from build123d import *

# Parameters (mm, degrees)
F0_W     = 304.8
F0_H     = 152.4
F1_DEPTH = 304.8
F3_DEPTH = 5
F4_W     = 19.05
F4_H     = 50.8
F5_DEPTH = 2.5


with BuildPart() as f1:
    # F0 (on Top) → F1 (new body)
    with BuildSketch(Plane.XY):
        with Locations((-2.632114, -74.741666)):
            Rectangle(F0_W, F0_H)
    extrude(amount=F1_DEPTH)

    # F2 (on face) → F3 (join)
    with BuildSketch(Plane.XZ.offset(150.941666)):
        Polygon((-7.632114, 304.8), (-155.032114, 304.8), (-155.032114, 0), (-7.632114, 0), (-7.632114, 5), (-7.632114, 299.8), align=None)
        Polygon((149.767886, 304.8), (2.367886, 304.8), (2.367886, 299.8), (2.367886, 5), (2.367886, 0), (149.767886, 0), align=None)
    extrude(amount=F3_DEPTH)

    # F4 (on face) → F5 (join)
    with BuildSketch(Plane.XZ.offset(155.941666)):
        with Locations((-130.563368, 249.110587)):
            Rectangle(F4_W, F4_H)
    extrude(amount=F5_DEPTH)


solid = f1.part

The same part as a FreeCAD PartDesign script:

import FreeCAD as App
import Part
import Sketcher
from FreeCAD import Vector
Q = App.Units.Quantity

doc = App.newDocument("Part")
body = doc.addObject("PartDesign::Body", "Body")

# Sketch on XY plane
sketch1 = doc.addObject("Sketcher::SketchObject", "Sketch")
body.addObject(sketch1)
sketch1.AttachmentSupport = (doc.XY_Plane, [""])
sketch1.MapMode = "FlatFace"
sketch1.addGeometry([
    Part.LineSegment(Vector(-155.032114, 1.458334, 0), Vector(-155.032114, -150.941666, 0)),
    Part.LineSegment(Vector(-155.032114, -150.941666, 0), Vector(149.767886, -150.941666, 0)),
    Part.LineSegment(Vector(149.767886, -150.941666, 0), Vector(149.767886, 1.458334, 0)),
    Part.LineSegment(Vector(149.767886, 1.458334, 0), Vector(-155.032114, 1.458334, 0)),
], False)
sketch1.addConstraint([
    Sketcher.Constraint("Coincident", 0, 2, 1, 1),
    Sketcher.Constraint("Coincident", 1, 2, 2, 1),
    Sketcher.Constraint("Coincident", 2, 2, 3, 1),
    Sketcher.Constraint("Coincident", 3, 2, 0, 1),
    Sketcher.Constraint("Vertical", 0),
    Sketcher.Constraint("Horizontal", 1),
    Sketcher.Constraint("Vertical", 2),
    Sketcher.Constraint("Horizontal", 3),
    Sketcher.Constraint("DistanceX", 1, 1, 1, 2, Q("12 in")),
    Sketcher.Constraint("DistanceY", 0, 2, 0, 1, Q("6 in")),
    Sketcher.Constraint("DistanceX", 0, 2, -1, 1, Q("155.032114 mm")),
    Sketcher.Constraint("DistanceY", 0, 2, -1, 1, Q("150.941666 mm")),
])
pad1 = doc.addObject("PartDesign::Pad", "Pad")
body.addObject(pad1)
pad1.Profile = sketch1
pad1.Length = Q("12 in")

# Sketch on XZ plane
sketch2 = doc.addObject("Sketcher::SketchObject", "Sketch001")
body.addObject(sketch2)
sketch2.AttachmentSupport = (doc.XZ_Plane, [""])
sketch2.MapMode = "FlatFace"
sketch2.AttachmentOffset = App.Placement(Vector(0, 0, 150.941666), App.Rotation())
sketch2.addGeometry([
    Part.LineSegment(Vector(-7.632114, 304.8, 0), Vector(-155.032114, 304.8, 0)),  # 0
    Part.LineSegment(Vector(-155.032114, 304.8, 0), Vector(-155.032114, 0, 0)),  # 1
    Part.LineSegment(Vector(-155.032114, 0, 0), Vector(-7.632114, 0, 0)),  # 2
    Part.LineSegment(Vector(-7.632114, 0, 0), Vector(-7.632114, 304.8, 0)),  # 3
    Part.LineSegment(Vector(149.767886, 304.8, 0), Vector(2.367886, 304.8, 0)),  # 4
    Part.LineSegment(Vector(2.367886, 304.8, 0), Vector(2.367886, 0, 0)),  # 5
    Part.LineSegment(Vector(2.367886, 0, 0), Vector(149.767886, 0, 0)),  # 6
    Part.LineSegment(Vector(149.767886, 0, 0), Vector(149.767886, 304.8, 0)),  # 7
], False)
sketch2.addConstraint([
    Sketcher.Constraint("Coincident", 0, 2, 1, 1),
    Sketcher.Constraint("Coincident", 1, 2, 2, 1),
    Sketcher.Constraint("Coincident", 2, 2, 3, 1),
    Sketcher.Constraint("Coincident", 3, 2, 0, 1),
    Sketcher.Constraint("Coincident", 4, 2, 5, 1),
    Sketcher.Constraint("Coincident", 5, 2, 6, 1),
    Sketcher.Constraint("Coincident", 6, 2, 7, 1),
    Sketcher.Constraint("Coincident", 7, 2, 4, 1),
    Sketcher.Constraint("Horizontal", 0),
    Sketcher.Constraint("Vertical", 1),
    Sketcher.Constraint("Horizontal", 2),
    Sketcher.Constraint("Vertical", 3),
    Sketcher.Constraint("Horizontal", 4),
    Sketcher.Constraint("Vertical", 5),
    Sketcher.Constraint("Horizontal", 6),
    Sketcher.Constraint("Vertical", 7),
    Sketcher.Constraint("PointOnObject", 1, 2, -1),
    Sketcher.Constraint("PointOnObject", 5, 2, -1),
    Sketcher.Constraint("Horizontal", 3, 2, 4, 2),
    Sketcher.Constraint("Equal", 2, 4),
    Sketcher.Constraint("DistanceY", 1, 2, 1, 1, Q("12 in")),
    Sketcher.Constraint("DistanceX", 1, 2, 6, 2, Q("12 in")),
    Sketcher.Constraint("DistanceX", 0, 2, 0, 1, Q("147.4 mm")),
    Sketcher.Constraint("DistanceX", 0, 2, -1, 1, Q("155.032114 mm")),
])
pad2 = doc.addObject("PartDesign::Pad", "Pad001")
body.addObject(pad2)
pad2.Profile = sketch2
pad2.Length = 5

# Sketch on XZ plane
sketch3 = doc.addObject("Sketcher::SketchObject", "Sketch002")
body.addObject(sketch3)
sketch3.AttachmentSupport = (doc.XZ_Plane, [""])
sketch3.MapMode = "FlatFace"
sketch3.AttachmentOffset = App.Placement(Vector(0, 0, 155.941666), App.Rotation())
sketch3.addGeometry([
    Part.LineSegment(Vector(-140.088368, 274.510587, 0), Vector(-140.088368, 223.710587, 0)),
    Part.LineSegment(Vector(-140.088368, 223.710587, 0), Vector(-121.038368, 223.710587, 0)),
    Part.LineSegment(Vector(-121.038368, 223.710587, 0), Vector(-121.038368, 274.510587, 0)),
    Part.LineSegment(Vector(-121.038368, 274.510587, 0), Vector(-140.088368, 274.510587, 0)),
], False)
sketch3.addConstraint([
    Sketcher.Constraint("Coincident", 0, 2, 1, 1),
    Sketcher.Constraint("Coincident", 1, 2, 2, 1),
    Sketcher.Constraint("Coincident", 2, 2, 3, 1),
    Sketcher.Constraint("Coincident", 3, 2, 0, 1),
    Sketcher.Constraint("Vertical", 0),
    Sketcher.Constraint("Horizontal", 1),
    Sketcher.Constraint("Vertical", 2),
    Sketcher.Constraint("Horizontal", 3),
    Sketcher.Constraint("DistanceY", 0, 2, 0, 1, Q("2 in")),
    Sketcher.Constraint("DistanceX", 1, 1, 1, 2, Q("0.75 in")),
    Sketcher.Constraint("DistanceX", 0, 2, -1, 1, Q("140.088368 mm")),
    Sketcher.Constraint("DistanceY", -1, 1, 0, 2, Q("223.710587 mm")),
])
pad3 = doc.addObject("PartDesign::Pad", "Pad002")
body.addObject(pad3)
pad3.Profile = sketch3
pad3.Length = 2.5

doc.recompute()
